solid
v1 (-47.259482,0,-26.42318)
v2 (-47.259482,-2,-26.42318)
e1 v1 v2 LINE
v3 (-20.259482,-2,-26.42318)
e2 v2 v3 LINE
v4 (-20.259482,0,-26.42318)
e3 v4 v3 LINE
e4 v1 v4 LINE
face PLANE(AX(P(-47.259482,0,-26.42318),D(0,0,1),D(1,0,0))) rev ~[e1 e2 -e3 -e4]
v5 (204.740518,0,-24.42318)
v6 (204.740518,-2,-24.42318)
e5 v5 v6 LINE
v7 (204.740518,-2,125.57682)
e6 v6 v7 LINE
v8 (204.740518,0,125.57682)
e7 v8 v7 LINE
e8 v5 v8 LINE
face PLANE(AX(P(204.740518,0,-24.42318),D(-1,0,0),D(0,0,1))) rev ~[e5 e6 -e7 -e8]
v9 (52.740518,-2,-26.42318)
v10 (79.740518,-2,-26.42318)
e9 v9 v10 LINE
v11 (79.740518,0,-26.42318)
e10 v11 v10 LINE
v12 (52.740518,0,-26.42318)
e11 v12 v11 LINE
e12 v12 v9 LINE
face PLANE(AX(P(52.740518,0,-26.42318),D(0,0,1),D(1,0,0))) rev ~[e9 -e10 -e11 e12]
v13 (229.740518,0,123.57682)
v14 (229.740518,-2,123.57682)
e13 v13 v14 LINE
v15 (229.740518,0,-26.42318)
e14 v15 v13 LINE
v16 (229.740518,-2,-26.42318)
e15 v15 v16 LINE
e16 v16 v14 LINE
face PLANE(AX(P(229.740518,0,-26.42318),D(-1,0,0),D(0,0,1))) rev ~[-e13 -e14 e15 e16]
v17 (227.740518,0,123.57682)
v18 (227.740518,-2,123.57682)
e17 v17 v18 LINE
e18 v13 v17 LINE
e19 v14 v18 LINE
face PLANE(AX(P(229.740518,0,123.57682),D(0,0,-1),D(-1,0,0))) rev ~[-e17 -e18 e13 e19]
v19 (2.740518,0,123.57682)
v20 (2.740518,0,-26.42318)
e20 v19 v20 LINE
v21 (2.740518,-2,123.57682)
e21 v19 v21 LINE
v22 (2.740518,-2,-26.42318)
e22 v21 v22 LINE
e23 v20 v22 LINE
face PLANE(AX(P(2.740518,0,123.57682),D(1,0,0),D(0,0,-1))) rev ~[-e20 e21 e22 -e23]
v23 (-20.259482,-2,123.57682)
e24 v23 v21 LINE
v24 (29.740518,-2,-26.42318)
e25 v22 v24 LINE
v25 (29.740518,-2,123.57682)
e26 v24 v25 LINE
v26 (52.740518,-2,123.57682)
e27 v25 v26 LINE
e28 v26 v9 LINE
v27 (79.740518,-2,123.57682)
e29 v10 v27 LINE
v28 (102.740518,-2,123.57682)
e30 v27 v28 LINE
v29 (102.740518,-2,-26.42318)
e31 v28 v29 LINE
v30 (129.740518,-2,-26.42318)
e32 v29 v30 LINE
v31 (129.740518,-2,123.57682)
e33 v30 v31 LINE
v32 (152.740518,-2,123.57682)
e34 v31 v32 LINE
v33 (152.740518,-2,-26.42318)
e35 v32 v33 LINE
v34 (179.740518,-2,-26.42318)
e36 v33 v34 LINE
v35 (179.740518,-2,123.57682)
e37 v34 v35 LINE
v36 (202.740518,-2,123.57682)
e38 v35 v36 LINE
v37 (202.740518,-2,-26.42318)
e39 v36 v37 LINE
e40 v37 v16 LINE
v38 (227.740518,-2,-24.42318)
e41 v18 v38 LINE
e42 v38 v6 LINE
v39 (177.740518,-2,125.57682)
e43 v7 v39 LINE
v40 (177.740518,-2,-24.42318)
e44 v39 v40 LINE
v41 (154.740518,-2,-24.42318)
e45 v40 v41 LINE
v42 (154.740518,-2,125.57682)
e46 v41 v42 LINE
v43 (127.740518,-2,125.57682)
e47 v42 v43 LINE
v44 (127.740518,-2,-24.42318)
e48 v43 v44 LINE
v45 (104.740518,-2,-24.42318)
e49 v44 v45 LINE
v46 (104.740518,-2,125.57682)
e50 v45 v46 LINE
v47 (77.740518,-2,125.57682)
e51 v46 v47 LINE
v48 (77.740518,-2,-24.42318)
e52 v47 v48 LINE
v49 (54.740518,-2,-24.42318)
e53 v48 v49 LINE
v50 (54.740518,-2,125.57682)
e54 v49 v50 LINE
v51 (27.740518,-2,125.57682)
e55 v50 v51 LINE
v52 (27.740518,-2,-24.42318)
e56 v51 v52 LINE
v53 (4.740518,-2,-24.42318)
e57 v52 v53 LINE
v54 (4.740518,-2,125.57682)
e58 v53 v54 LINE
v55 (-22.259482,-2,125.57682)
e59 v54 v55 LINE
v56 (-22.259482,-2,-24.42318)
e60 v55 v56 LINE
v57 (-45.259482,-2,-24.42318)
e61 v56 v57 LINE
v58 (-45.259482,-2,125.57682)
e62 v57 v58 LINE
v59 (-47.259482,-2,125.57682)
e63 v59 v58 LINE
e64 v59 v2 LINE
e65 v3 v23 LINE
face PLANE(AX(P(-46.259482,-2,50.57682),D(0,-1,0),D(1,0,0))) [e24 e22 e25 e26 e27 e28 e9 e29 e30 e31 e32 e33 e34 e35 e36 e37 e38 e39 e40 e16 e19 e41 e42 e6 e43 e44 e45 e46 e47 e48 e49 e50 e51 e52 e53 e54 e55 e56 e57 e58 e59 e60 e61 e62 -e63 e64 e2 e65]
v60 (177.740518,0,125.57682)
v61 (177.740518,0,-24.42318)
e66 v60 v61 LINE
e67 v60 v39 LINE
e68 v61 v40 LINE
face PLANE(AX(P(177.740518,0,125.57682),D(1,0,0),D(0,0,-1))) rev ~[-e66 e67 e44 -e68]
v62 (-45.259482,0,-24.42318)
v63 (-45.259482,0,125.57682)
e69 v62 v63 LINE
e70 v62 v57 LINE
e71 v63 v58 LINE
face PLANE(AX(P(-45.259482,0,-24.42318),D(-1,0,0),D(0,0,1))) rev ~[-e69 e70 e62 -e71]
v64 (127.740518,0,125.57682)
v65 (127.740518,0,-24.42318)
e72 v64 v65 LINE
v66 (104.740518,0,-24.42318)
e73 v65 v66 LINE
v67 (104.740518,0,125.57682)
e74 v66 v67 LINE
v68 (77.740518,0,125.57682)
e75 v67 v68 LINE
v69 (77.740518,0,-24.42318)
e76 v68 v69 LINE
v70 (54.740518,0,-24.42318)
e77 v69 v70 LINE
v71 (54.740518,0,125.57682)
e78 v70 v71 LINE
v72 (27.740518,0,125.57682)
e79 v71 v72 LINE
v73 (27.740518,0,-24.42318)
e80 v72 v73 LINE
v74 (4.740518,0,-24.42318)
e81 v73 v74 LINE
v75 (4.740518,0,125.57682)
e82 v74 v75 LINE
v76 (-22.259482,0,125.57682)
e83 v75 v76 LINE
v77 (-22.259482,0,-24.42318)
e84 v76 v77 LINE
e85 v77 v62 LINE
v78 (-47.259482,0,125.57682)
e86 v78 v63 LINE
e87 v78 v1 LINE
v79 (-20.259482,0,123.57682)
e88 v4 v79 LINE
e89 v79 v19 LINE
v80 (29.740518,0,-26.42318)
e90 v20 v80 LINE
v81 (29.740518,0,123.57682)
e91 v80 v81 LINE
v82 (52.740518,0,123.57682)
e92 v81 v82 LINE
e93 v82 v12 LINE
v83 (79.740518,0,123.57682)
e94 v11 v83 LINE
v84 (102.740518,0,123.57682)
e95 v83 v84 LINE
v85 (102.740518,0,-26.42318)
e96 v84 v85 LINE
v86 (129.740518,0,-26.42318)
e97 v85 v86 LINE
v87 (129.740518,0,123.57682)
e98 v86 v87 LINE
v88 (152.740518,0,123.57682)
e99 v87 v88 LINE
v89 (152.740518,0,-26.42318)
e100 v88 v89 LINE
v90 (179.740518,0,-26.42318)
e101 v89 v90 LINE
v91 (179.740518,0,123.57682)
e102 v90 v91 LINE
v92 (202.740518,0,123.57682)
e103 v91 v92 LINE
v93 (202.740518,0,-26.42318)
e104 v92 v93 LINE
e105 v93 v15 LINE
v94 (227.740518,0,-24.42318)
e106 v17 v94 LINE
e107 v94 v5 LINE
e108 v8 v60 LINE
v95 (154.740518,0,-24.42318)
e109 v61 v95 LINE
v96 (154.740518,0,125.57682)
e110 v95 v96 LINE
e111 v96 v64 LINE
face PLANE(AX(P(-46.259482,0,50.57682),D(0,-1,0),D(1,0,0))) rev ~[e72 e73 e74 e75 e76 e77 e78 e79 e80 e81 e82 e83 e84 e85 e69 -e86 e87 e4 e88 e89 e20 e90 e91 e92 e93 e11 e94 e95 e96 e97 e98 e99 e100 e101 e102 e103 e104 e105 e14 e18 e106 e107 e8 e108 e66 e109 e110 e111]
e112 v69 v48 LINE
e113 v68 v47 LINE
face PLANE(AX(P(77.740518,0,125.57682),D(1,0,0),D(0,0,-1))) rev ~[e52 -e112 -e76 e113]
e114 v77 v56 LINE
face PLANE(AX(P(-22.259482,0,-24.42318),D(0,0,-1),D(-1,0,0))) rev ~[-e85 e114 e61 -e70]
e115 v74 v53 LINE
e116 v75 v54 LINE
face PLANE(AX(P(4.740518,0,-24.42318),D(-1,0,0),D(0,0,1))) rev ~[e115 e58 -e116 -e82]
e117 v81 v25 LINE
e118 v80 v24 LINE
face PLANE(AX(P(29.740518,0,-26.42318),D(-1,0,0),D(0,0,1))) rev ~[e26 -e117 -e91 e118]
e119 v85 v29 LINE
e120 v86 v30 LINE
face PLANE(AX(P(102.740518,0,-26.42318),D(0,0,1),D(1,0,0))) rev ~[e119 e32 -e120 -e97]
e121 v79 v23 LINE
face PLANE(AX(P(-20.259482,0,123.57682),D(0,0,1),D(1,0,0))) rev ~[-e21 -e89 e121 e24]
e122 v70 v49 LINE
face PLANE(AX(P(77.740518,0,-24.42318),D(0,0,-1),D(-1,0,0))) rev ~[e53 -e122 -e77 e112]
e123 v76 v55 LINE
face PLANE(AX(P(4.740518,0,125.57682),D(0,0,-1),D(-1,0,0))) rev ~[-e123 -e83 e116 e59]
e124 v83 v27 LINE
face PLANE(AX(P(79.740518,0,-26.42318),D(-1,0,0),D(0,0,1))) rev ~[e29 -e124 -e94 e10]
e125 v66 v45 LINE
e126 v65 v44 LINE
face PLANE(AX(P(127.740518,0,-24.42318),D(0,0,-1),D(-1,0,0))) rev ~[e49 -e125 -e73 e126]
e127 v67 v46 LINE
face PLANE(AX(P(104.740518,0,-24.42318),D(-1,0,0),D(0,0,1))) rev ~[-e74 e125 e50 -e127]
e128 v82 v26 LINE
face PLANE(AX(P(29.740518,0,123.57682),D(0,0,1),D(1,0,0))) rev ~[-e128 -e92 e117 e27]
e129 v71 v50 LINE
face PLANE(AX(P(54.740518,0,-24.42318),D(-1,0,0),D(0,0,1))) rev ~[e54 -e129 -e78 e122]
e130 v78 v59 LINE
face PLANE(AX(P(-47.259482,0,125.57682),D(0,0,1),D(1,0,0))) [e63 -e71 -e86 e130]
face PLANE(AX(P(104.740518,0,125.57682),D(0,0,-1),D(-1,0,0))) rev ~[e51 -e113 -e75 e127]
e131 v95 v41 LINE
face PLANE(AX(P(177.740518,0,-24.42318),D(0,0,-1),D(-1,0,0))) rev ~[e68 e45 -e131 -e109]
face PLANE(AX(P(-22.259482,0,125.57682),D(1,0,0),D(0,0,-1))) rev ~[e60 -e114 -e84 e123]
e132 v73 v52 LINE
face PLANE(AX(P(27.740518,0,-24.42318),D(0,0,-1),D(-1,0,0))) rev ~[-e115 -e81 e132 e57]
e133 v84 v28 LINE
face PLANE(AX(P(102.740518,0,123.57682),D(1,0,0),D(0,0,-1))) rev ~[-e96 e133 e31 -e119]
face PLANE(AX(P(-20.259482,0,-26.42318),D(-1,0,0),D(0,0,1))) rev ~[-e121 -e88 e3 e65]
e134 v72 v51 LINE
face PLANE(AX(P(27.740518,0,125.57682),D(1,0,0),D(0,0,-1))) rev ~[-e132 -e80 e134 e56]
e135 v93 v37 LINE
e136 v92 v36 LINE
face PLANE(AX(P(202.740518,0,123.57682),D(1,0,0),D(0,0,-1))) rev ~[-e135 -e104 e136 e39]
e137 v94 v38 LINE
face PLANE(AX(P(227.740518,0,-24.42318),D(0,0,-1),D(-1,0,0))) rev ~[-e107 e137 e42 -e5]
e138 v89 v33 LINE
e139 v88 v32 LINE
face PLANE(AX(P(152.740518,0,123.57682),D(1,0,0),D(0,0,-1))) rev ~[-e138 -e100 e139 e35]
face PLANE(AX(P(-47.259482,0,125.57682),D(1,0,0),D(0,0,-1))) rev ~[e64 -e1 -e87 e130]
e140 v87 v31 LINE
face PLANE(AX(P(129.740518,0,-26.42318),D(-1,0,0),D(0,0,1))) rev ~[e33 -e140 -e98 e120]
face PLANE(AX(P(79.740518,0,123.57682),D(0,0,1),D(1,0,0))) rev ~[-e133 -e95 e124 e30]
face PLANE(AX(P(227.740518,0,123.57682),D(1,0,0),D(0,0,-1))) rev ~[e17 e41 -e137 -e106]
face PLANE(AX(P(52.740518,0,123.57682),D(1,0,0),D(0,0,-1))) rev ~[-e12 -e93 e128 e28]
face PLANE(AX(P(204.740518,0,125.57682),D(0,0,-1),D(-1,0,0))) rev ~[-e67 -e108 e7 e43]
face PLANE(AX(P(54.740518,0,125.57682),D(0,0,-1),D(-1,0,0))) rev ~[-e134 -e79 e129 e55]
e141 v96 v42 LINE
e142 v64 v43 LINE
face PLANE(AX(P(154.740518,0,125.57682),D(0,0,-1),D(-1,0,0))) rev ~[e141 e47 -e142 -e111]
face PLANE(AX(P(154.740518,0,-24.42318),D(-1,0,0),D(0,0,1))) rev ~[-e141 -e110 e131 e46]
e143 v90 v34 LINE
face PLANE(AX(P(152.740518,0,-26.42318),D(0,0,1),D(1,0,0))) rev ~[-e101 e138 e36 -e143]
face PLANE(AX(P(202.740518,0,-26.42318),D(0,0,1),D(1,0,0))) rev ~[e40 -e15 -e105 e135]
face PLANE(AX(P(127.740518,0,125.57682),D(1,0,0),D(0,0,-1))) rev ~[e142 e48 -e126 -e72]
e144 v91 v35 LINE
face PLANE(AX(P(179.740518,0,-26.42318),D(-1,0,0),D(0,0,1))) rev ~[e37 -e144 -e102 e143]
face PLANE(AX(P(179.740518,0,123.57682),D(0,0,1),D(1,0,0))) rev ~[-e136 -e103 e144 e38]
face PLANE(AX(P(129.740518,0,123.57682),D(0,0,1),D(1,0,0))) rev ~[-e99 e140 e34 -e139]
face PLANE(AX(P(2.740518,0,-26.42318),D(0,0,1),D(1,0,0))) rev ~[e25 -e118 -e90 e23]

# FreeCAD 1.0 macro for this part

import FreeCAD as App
import Part
import Sketcher
Q = App.Units.Quantity

doc = App.newDocument("Part")
body = doc.addObject("PartDesign::Body", "Body")

# Sketch on XZ plane
sketch1 = body.newObject("Sketcher::SketchObject", "Sketch")
sketch1.AttachmentSupport = (doc.getObject("XZ_Plane"), [""])
sketch1.MapMode = "FlatFace"
sketch1.addGeometry([
    Part.LineSegment(App.Vector(-47.259482, 125.57682, 0), App.Vector(-47.259482, -26.42318, 0)),  # 0
    Part.LineSegment(App.Vector(-47.259482, -26.42318, 0), App.Vector(-20.259482, -26.42318, 0)),  # 1
    Part.LineSegment(App.Vector(-20.259482, -26.42318, 0), App.Vector(-20.259482, 123.57682, 0)),  # 2
    Part.LineSegment(App.Vector(-20.259482, 123.57682, 0), App.Vector(2.740518, 123.57682, 0)),  # 3
    Part.LineSegment(App.Vector(2.740518, 123.57682, 0), App.Vector(2.740518, -26.42318, 0)),  # 4
    Part.LineSegment(App.Vector(2.740518, -26.42318, 0), App.Vector(29.740518, -26.42318, 0)),  # 5
    Part.LineSegment(App.Vector(29.740518, -26.42318, 0), App.Vector(29.740518, 123.57682, 0)),  # 6
    Part.LineSegment(App.Vector(29.740518, 123.57682, 0), App.Vector(52.740518, 123.57682, 0)),  # 7
    Part.LineSegment(App.Vector(52.740518, 123.57682, 0), App.Vector(52.740518, -26.42318, 0)),  # 8
    Part.LineSegment(App.Vector(52.740518, -26.42318, 0), App.Vector(79.740518, -26.42318, 0)),  # 9
    Part.LineSegment(App.Vector(79.740518, -26.42318, 0), App.Vector(79.740518, 123.57682, 0)),  # 10
    Part.LineSegment(App.Vector(79.740518, 123.57682, 0), App.Vector(102.740518, 123.57682, 0)),  # 11
    Part.LineSegment(App.Vector(102.740518, 123.57682, 0), App.Vector(102.740518, -26.42318, 0)),  # 12
    Part.LineSegment(App.Vector(102.740518, -26.42318, 0), App.Vector(129.740518, -26.42318, 0)),  # 13
    Part.LineSegment(App.Vector(129.740518, -26.42318, 0), App.Vector(129.740518, 123.57682, 0)),  # 14
    Part.LineSegment(App.Vector(129.740518, 123.57682, 0), App.Vector(152.740518, 123.57682, 0)),  # 15
    Part.LineSegment(App.Vector(152.740518, 123.57682, 0), App.Vector(152.740518, -26.42318, 0)),  # 16
    Part.LineSegment(App.Vector(152.740518, -26.42318, 0), App.Vector(179.740518, -26.42318, 0)),  # 17
    Part.LineSegment(App.Vector(179.740518, -26.42318, 0), App.Vector(179.740518, 123.57682, 0)),  # 18
    Part.LineSegment(App.Vector(179.740518, 123.57682, 0), App.Vector(202.740518, 123.57682, 0)),  # 19
    Part.LineSegment(App.Vector(202.740518, 123.57682, 0), App.Vector(202.740518, -26.42318, 0)),  # 20
    Part.LineSegment(App.Vector(202.740518, -26.42318, 0), App.Vector(229.740518, -26.42318, 0)),  # 21
    Part.LineSegment(App.Vector(229.740518, -26.42318, 0), App.Vector(229.740518, 123.57682, 0)),  # 22
    Part.LineSegment(App.Vector(229.740518, 123.57682, 0), App.Vector(227.740518, 123.57682, 0)),  # 23
    Part.LineSegment(App.Vector(227.740518, 123.57682, 0), App.Vector(227.740518, -24.42318, 0)),  # 24
    Part.LineSegment(App.Vector(227.740518, -24.42318, 0), App.Vector(204.740518, -24.42318, 0)),  # 25
    Part.LineSegment(App.Vector(204.740518, -24.42318, 0), App.Vector(204.740518, 125.57682, 0)),  # 26
    Part.LineSegment(App.Vector(204.740518, 125.57682, 0), App.Vector(177.740518, 125.57682, 0)),  # 27
    Part.LineSegment(App.Vector(177.740518, 125.57682, 0), App.Vector(177.740518, -24.42318, 0)),  # 28
    Part.LineSegment(App.Vector(177.740518, -24.42318, 0), App.Vector(154.740518, -24.42318, 0)),  # 29
    Part.LineSegment(App.Vector(154.740518, -24.42318, 0), App.Vector(154.740518, 125.57682, 0)),  # 30
    Part.LineSegment(App.Vector(154.740518, 125.57682, 0), App.Vector(127.740518, 125.57682, 0)),  # 31
    Part.LineSegment(App.Vector(127.740518, 125.57682, 0), App.Vector(127.740518, -24.42318, 0)),  # 32
    Part.LineSegment(App.Vector(127.740518, -24.42318, 0), App.Vector(104.740518, -24.42318, 0)),  # 33
    Part.LineSegment(App.Vector(104.740518, -24.42318, 0), App.Vector(104.740518, 125.57682, 0)),  # 34
    Part.LineSegment(App.Vector(104.740518, 125.57682, 0), App.Vector(77.740518, 125.57682, 0)),  # 35
    Part.LineSegment(App.Vector(77.740518, 125.57682, 0), App.Vector(77.740518, -24.42318, 0)),  # 36
    Part.LineSegment(App.Vector(77.740518, -24.42318, 0), App.Vector(54.740518, -24.42318, 0)),  # 37
    Part.LineSegment(App.Vector(54.740518, -24.42318, 0), App.Vector(54.740518, 125.57682, 0)),  # 38
    Part.LineSegment(App.Vector(54.740518, 125.57682, 0), App.Vector(27.740518, 125.57682, 0)),  # 39
    Part.LineSegment(App.Vector(27.740518, 125.57682, 0), App.Vector(27.740518, -24.42318, 0)),  # 40
    Part.LineSegment(App.Vector(27.740518, -24.42318, 0), App.Vector(4.740518, -24.42318, 0)),  # 41
    Part.LineSegment(App.Vector(4.740518, -24.42318, 0), App.Vector(4.740518, 125.57682, 0)),  # 42
    Part.LineSegment(App.Vector(4.740518, 125.57682, 0), App.Vector(-22.259482, 125.57682, 0)),  # 43
    Part.LineSegment(App.Vector(-22.259482, 125.57682, 0), App.Vector(-22.259482, -24.42318, 0)),  # 44
    Part.LineSegment(App.Vector(-22.259482, -24.42318, 0), App.Vector(-45.259482, -24.42318, 0)),  # 45
    Part.LineSegment(App.Vector(-45.259482, -24.42318, 0), App.Vector(-45.259482, 125.57682, 0)),  # 46
    Part.LineSegment(App.Vector(-45.259482, 125.57682, 0), App.Vector(-47.259482, 125.57682, 0)),  # 47
], False)
sketch1.addConstraint([
    Sketcher.Constraint("Coincident", 0, 2, 1, 1),
    Sketcher.Constraint("Coincident", 1, 2, 2, 1),
    Sketcher.Constraint("Coincident", 2, 2, 3, 1),
    Sketcher.Constraint("Coincident", 3, 2, 4, 1),
    Sketcher.Constraint("Coincident", 4, 2, 5, 1),
    Sketcher.Constraint("Coincident", 5, 2, 6, 1),
    Sketcher.Constraint("Coincident", 6, 2, 7, 1),
    Sketcher.Constraint("Coincident", 7, 2, 8, 1),
    Sketcher.Constraint("Coincident", 8, 2, 9, 1),
    Sketcher.Constraint("Coincident", 9, 2, 10, 1),
    Sketcher.Constraint("Coincident", 10, 2, 11, 1),
    Sketcher.Constraint("Coincident", 11, 2, 12, 1),
    Sketcher.Constraint("Coincident", 12, 2, 13, 1),
    Sketcher.Constraint("Coincident", 13, 2, 14, 1),
    Sketcher.Constraint("Coincident", 14, 2, 15, 1),
    Sketcher.Constraint("Coincident", 15, 2, 16, 1),
    Sketcher.Constraint("Coincident", 16, 2, 17, 1),
    Sketcher.Constraint("Coincident", 17, 2, 18, 1),
    Sketcher.Constraint("Coincident", 18, 2, 19, 1),
    Sketcher.Constraint("Coincident", 19, 2, 20, 1),
    Sketcher.Constraint("Coincident", 20, 2, 21, 1),
    Sketcher.Constraint("Coincident", 21, 2, 22, 1),
    Sketcher.Constraint("Coincident", 22, 2, 23, 1),
    Sketcher.Constraint("Coincident", 23, 2, 24, 1),
    Sketcher.Constraint("Coincident", 24, 2, 25, 1),
    Sketcher.Constraint("Coincident", 25, 2, 26, 1),
    Sketcher.Constraint("Coincident", 26, 2, 27, 1),
    Sketcher.Constraint("Coincident", 27, 2, 28, 1),
    Sketcher.Constraint("Coincident", 28, 2, 29, 1),
    Sketcher.Constraint("Coincident", 29, 2, 30, 1),
    Sketcher.Constraint("Coincident", 30, 2, 31, 1),
    Sketcher.Constraint("Coincident", 31, 2, 32, 1),
    Sketcher.Constraint("Coincident", 32, 2, 33, 1),
    Sketcher.Constraint("Coincident", 33, 2, 34, 1),
    Sketcher.Constraint("Coincident", 34, 2, 35, 1),
    Sketcher.Constraint("Coincident", 35, 2, 36, 1),
    Sketcher.Constraint("Coincident", 36, 2, 37, 1),
    Sketcher.Constraint("Coincident", 37, 2, 38, 1),
    Sketcher.Constraint("Coincident", 38, 2, 39, 1),
    Sketcher.Constraint("Coincident", 39, 2, 40, 1),
    Sketcher.Constraint("Coincident", 40, 2, 41, 1),
    Sketcher.Constraint("Coincident", 41, 2, 42, 1),
    Sketcher.Constraint("Coincident", 42, 2, 43, 1),
    Sketcher.Constraint("Coincident", 43, 2, 44, 1),
    Sketcher.Constraint("Coincident", 44, 2, 45, 1),
    Sketcher.Constraint("Coincident", 45, 2, 46, 1),
    Sketcher.Constraint("Coincident", 46, 2, 47, 1),
    Sketcher.Constraint("Coincident", 47, 2, 0, 1),
    Sketcher.Constraint("Vertical", 0),
    Sketcher.Constraint("Horizontal", 1),
    Sketcher.Constraint("Vertical", 2),
    Sketcher.Constraint("Horizontal", 3),
    Sketcher.Constraint("Vertical", 4),
    Sketcher.Constraint("Horizontal", 5),
    Sketcher.Constraint("Vertical", 6),
    Sketcher.Constraint("Horizontal", 7),
    Sketcher.Constraint("Vertical", 8),
    Sketcher.Constraint("Horizontal", 9),
    Sketcher.Constraint("Vertical", 10),
    Sketcher.Constraint("Horizontal", 11),
    Sketcher.Constraint("Vertical", 12),
    Sketcher.Constraint("Horizontal", 13),
    Sketcher.Constraint("Vertical", 14),
    Sketcher.Constraint("Horizontal", 15),
    Sketcher.Constraint("Vertical", 16),
    Sketcher.Constraint("Horizontal", 17),
    Sketcher.Constraint("Vertical", 18),
    Sketcher.Constraint("Horizontal", 19),
    Sketcher.Constraint("Vertical", 20),
    Sketcher.Constraint("Horizontal", 21),
    Sketcher.Constraint("Vertical", 22),
    Sketcher.Constraint("Horizontal", 23),
    Sketcher.Constraint("Vertical", 24),
    Sketcher.Constraint("Horizontal", 25),
    Sketcher.Constraint("Vertical", 26),
    Sketcher.Constraint("Horizontal", 27),
    Sketcher.Constraint("Vertical", 28),
    Sketcher.Constraint("Horizontal", 29),
    Sketcher.Constraint("Vertical", 30),
    Sketcher.Constraint("Horizontal", 31),
    Sketcher.Constraint("Vertical", 32),
    Sketcher.Constraint("Horizontal", 33),
    Sketcher.Constraint("Vertical", 34),
    Sketcher.Constraint("Horizontal", 35),
    Sketcher.Constraint("Vertical", 36),
    Sketcher.Constraint("Horizontal", 37),
    Sketcher.Constraint("Vertical", 38),
    Sketcher.Constraint("Horizontal", 39),
    Sketcher.Constraint("Vertical", 40),
    Sketcher.Constraint("Horizontal", 41),
    Sketcher.Constraint("Vertical", 42),
    Sketcher.Constraint("Horizontal", 43),
    Sketcher.Constraint("Vertical", 44),
    Sketcher.Constraint("Horizontal", 45),
    Sketcher.Constraint("Vertical", 46),
    Sketcher.Constraint("Horizontal", 47),
    Sketcher.Constraint("Horizontal", 1, 2, 4, 2),
    Sketcher.Constraint("Horizontal", 3, 2, 6, 2),
    Sketcher.Constraint("Horizontal", 5, 2, 8, 2),
    Sketcher.Constraint("Horizontal", 7, 2, 10, 2),
    Sketcher.Constraint("Horizontal", 9, 2, 12, 2),
    Sketcher.Constraint("Horizontal", 11, 2, 14, 2),
    Sketcher.Constraint("Horizontal", 13, 2, 16, 2),
    Sketcher.Constraint("Horizontal", 15, 2, 18, 2),
    Sketcher.Constraint("Horizontal", 17, 2, 20, 2),
    Sketcher.Constraint("Horizontal", 19, 2, 22, 2),
    Sketcher.Constraint("Horizontal", 25, 2, 28, 2),
    Sketcher.Constraint("Horizontal", 27, 2, 30, 2),
    Sketcher.Constraint("Horizontal", 29, 2, 32, 2),
    Sketcher.Constraint("Horizontal", 31, 2, 34, 2),
    Sketcher.Constraint("Horizontal", 33, 2, 36, 2),
    Sketcher.Constraint("Horizontal", 35, 2, 38, 2),
    Sketcher.Constraint("Horizontal", 37, 2, 40, 2),
    Sketcher.Constraint("Horizontal", 39, 2, 42, 2),
    Sketcher.Constraint("Horizontal", 41, 2, 44, 2),
    Sketcher.Constraint("Horizontal", 43, 2, 46, 2),
    Sketcher.Constraint("Equal", 1, 5),
    Sketcher.Constraint("Equal", 3, 7),
    Sketcher.Constraint("Equal", 5, 9),
    Sketcher.Constraint("Equal", 7, 11),
    Sketcher.Constraint("Equal", 9, 13),
    Sketcher.Constraint("Equal", 11, 15),
    Sketcher.Constraint("Equal", 13, 17),
    Sketcher.Constraint("Equal", 15, 19),
    Sketcher.Constraint("Equal", 17, 21),
    Sketcher.Constraint("Equal", 19, 25),
    Sketcher.Constraint("Equal", 21, 27),
    Sketcher.Constraint("Equal", 25, 29),
    Sketcher.Constraint("Equal", 27, 31),
    Sketcher.Constraint("Equal", 29, 33),
    Sketcher.Constraint("Equal", 31, 35),
    Sketcher.Constraint("Equal", 33, 37),
    Sketcher.Constraint("Equal", 35, 39),
    Sketcher.Constraint("Equal", 37, 41),
    Sketcher.Constraint("Equal", 39, 43),
    Sketcher.Constraint("Equal", 41, 45),
    Sketcher.Constraint("Equal", 23, 47),
    Sketcher.Constraint("Equal", 22, 26),
    Sketcher.Constraint("DistanceX", 1, 1, 1, 2, Q("27 mm")),
    Sketcher.Constraint("DistanceX", 3, 1, 3, 2, Q("23 mm")),
    Sketcher.Constraint("DistanceY", 0, 2, 0, 1, Q("152 mm")),
    Sketcher.Constraint("DistanceY", 2, 1, 2, 2, Q("150 mm")),
    Sketcher.Constraint("DistanceX", 0, 2, -1, 1, Q("47.259482 mm")),
    Sketcher.Constraint("DistanceY", 0, 2, -1, 1, Q("26.42318 mm")),
])
pad1 = body.newObject("PartDesign::Pad", "Pad")
pad1.Profile = sketch1
pad1.Length = 2

doc.recompute()
